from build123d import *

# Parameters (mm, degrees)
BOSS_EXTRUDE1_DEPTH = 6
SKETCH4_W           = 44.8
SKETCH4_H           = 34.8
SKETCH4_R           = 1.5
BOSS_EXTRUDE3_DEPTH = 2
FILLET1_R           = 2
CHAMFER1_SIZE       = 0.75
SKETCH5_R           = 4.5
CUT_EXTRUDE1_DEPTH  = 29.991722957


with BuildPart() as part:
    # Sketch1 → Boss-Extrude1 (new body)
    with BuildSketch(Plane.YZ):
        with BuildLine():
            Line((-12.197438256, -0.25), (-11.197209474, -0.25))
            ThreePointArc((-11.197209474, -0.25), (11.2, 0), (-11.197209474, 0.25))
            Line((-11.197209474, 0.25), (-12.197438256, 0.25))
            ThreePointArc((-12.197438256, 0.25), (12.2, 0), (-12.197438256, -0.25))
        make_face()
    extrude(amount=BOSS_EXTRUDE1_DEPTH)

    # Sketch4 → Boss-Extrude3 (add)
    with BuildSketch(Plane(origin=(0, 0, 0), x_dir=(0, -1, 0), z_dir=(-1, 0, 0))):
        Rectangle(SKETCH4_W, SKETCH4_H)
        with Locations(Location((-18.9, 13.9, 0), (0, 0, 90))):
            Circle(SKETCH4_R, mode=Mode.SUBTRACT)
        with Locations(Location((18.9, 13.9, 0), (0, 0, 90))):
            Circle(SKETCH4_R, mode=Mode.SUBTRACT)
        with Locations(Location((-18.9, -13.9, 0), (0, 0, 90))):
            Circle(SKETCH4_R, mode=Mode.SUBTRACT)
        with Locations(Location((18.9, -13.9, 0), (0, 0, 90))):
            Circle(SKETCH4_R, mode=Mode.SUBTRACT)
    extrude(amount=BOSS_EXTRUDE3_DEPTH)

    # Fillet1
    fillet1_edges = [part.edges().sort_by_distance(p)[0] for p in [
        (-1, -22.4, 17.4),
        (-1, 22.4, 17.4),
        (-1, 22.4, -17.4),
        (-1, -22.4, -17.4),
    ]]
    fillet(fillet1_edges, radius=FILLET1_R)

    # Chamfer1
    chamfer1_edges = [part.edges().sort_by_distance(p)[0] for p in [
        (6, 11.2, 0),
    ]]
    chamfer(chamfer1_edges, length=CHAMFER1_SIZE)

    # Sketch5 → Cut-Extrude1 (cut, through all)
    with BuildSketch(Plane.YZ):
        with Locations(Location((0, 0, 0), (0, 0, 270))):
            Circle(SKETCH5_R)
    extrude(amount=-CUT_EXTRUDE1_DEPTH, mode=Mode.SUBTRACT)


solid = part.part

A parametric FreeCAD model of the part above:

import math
import FreeCAD as App
import Part
import Sketcher


def edges_at(feature, points):
    """Names of the edges that pass closest to the given points."""
    edges = feature.Shape.Edges
    near = lambda p: min(range(len(edges)), key=lambda i: edges[i].distToShape(Part.Vertex(*p))[0])
    return sorted({f"Edge{near(p) + 1}" for p in points})


def add_polygon(sketch, points):
    """Adds a closed chain of lines whose ends are joined by coincident constraints."""
    first, n = sketch.GeometryCount, len(points)
    for a, b in zip(points, points[1:] + points[:1]):
        sketch.addGeometry(Part.LineSegment(App.Vector(*a, 0), App.Vector(*b, 0)), False)
    for i in range(n):
        sketch.addConstraint(Sketcher.Constraint("Coincident", first + i, 2, first + (i + 1) % n, 1))

doc = App.newDocument("Part")
params = doc.addObject("Spreadsheet::Sheet", "Params")
for row, (alias, value) in enumerate([
    ("sketch1_radius", "12.2 mm"),
    ("sketch1_radius2", "11.2 mm"),
    ("pad1_length", "6 mm"),
    ("sketch2_diameter", "3 mm"),
    ("sketch2_width", "44.8 mm"),
    ("sketch2_height", "34.8 mm"),
    ("pad2_length", "2 mm"),
    ("fillet_radius", "2 mm"),
    ("chamfer_size", "0.75 mm"),
    ("sketch3_diameter", "9 mm"),
], start=1):
    params.set(f"A{row}", alias)
    params.set(f"B{row}", "=" + value)
    params.setAlias(f"B{row}", alias)

body = doc.addObject("PartDesign::Body", "Body")

sketch1 = body.newObject("Sketcher::SketchObject", "Sketch")
sketch1.AttachmentSupport = (doc.getObject("YZ_Plane"), [""])
sketch1.MapMode = "FlatFace"
sketch1.addGeometry(Part.LineSegment(App.Vector(-11.197209, -0.25, 0), App.Vector(-12.197438, -0.25, 0)), False)
sketch1.addGeometry(Part.ArcOfCircle(Part.Circle(App.Vector(0, 0, 0), App.Vector(0, 0, 1), 12.2), math.radians(-178.825824), math.radians(178.825824)), False)
sketch1.addGeometry(Part.LineSegment(App.Vector(-12.197438, 0.25, 0), App.Vector(-11.197209, 0.25, 0)), False)
sketch1.addGeometry(Part.ArcOfCircle(Part.Circle(App.Vector(0, 0, 0), App.Vector(0, 0, 1), 11.2), math.radians(-178.72097), math.radians(178.72097)), False)
sketch1.addConstraint(Sketcher.Constraint("Coincident", 0, 2, 1, 1))
sketch1.addConstraint(Sketcher.Constraint("Coincident", 1, 2, 2, 1))
sketch1.addConstraint(Sketcher.Constraint("Coincident", 2, 2, 3, 2))
sketch1.addConstraint(Sketcher.Constraint("Coincident", 3, 1, 0, 1))
sketch1.addConstraint(Sketcher.Constraint("Horizontal", 0))
sketch1.addConstraint(Sketcher.Constraint("Horizontal", 2))
sketch1.addConstraint(Sketcher.Constraint("Coincident", 1, 3, -1, 1))
sketch1.addConstraint(Sketcher.Constraint("Coincident", 3, 3, -1, 1))
sketch1.addConstraint(Sketcher.Constraint("Vertical", 0, 2, 1, 2))
sketch1.addConstraint(Sketcher.Constraint("Radius", 1, 12.2))
sketch1.addConstraint(Sketcher.Constraint("Radius", 3, 11.2))
sketch1.addConstraint(Sketcher.Constraint("DistanceY", 0, 2, 1, 2, 0.5))
sketch1.setExpression("Constraints[9]", "Params.sketch1_radius")
sketch1.setExpression("Constraints[10]", "Params.sketch1_radius2")
pad1 = body.newObject("PartDesign::Pad", "Pad")
pad1.Profile = sketch1
pad1.setExpression("Length", "Params.pad1_length")

sketch2 = body.newObject("Sketcher::SketchObject", "Sketch001")
sketch2.AttachmentSupport = (doc.getObject("YZ_Plane"), [""])
sketch2.MapMode = "FlatFace"
add_polygon(sketch2, [(22.4, 17.4), (22.4, -17.4), (-22.4, -17.4), (-22.4, 17.4)])
sketch2.addGeometry(Part.Circle(App.Vector(18.9, -13.9, 0), App.Vector(0, 0, 1), 1.5), False)
sketch2.addGeometry(Part.Circle(App.Vector(-18.9, -13.9, 0), App.Vector(0, 0, 1), 1.5), False)
sketch2.addGeometry(Part.Circle(App.Vector(18.9, 13.9, 0), App.Vector(0, 0, 1), 1.5), False)
sketch2.addGeometry(Part.Circle(App.Vector(-18.9, 13.9, 0), App.Vector(0, 0, 1), 1.5), False)
sketch2.addConstraint(Sketcher.Constraint("Vertical", 0))
sketch2.addConstraint(Sketcher.Constraint("Horizontal", 1))
sketch2.addConstraint(Sketcher.Constraint("Vertical", 2))
sketch2.addConstraint(Sketcher.Constraint("Horizontal", 3))
sketch2.addConstraint(Sketcher.Constraint("Equal", 4, 5))
sketch2.addConstraint(Sketcher.Constraint("Equal", 5, 6))
sketch2.addConstraint(Sketcher.Constraint("Equal", 6, 7))
sketch2.addConstraint(Sketcher.Constraint("Symmetric", 5, 3, 6, 3, -1, 1))
sketch2.addConstraint(Sketcher.Constraint("Symmetric", 4, 3, 7, 3, -1, 1))
sketch2.addConstraint(Sketcher.Constraint("Symmetric", 0, 2, 2, 2, -1, 1))
sketch2.addConstraint(Sketcher.Constraint("Symmetric", 4, 3, 5, 3, -2))
sketch2.addConstraint(Sketcher.Constraint("Diameter", 4, 3.0))
sketch2.addConstraint(Sketcher.Constraint("DistanceX", 1, 2, 1, 1, 44.8))
sketch2.addConstraint(Sketcher.Constraint("DistanceY", 0, 2, 0, 1, 34.8))
sketch2.addConstraint(Sketcher.Constraint("DistanceX", -1, 1, 4, 3, 18.9))
sketch2.addConstraint(Sketcher.Constraint("DistanceY", 4, 3, -1, 1, 13.9))
sketch2.setExpression("Constraints[15]", "Params.sketch2_diameter")
sketch2.setExpression("Constraints[16]", "Params.sketch2_width")
sketch2.setExpression("Constraints[17]", "Params.sketch2_height")
pad2 = body.newObject("PartDesign::Pad", "Pad001")
pad2.Profile = sketch2
pad2.setExpression("Length", "Params.pad2_length")
pad2.Reversed = True
doc.recompute()

fillet = body.newObject("PartDesign::Fillet", "Fillet")
fillet.Base = (pad2, edges_at(pad2, [
    (-1, -22.4, 17.4),
    (-1, 22.4, 17.4),
    (-1, 22.4, -17.4),
    (-1, -22.4, -17.4),
]))
fillet.setExpression("Radius", "Params.fillet_radius")
doc.recompute()

chamfer = body.newObject("PartDesign::Chamfer", "Chamfer")
chamfer.Base = (fillet, edges_at(fillet, [(6, 11.2, 0)]))
chamfer.setExpression("Size", "Params.chamfer_size")

sketch3 = body.newObject("Sketcher::SketchObject", "Sketch002")
sketch3.AttachmentSupport = (doc.getObject("YZ_Plane"), [""])
sketch3.MapMode = "FlatFace"
sketch3.addGeometry(Part.Circle(App.Vector(0, 0, 0), App.Vector(0, 0, 1), 4.5), False)
sketch3.addConstraint(Sketcher.Constraint("Coincident", 0, 3, -1, 1))
sketch3.addConstraint(Sketcher.Constraint("Diameter", 0, 9.0))
sketch3.setExpression("Constraints[1]", "Params.sketch3_diameter")
pocket1 = body.newObject("PartDesign::Pocket", "Pocket")
pocket1.Profile = sketch3
pocket1.Type = "ThroughAll"

doc.recompute()
